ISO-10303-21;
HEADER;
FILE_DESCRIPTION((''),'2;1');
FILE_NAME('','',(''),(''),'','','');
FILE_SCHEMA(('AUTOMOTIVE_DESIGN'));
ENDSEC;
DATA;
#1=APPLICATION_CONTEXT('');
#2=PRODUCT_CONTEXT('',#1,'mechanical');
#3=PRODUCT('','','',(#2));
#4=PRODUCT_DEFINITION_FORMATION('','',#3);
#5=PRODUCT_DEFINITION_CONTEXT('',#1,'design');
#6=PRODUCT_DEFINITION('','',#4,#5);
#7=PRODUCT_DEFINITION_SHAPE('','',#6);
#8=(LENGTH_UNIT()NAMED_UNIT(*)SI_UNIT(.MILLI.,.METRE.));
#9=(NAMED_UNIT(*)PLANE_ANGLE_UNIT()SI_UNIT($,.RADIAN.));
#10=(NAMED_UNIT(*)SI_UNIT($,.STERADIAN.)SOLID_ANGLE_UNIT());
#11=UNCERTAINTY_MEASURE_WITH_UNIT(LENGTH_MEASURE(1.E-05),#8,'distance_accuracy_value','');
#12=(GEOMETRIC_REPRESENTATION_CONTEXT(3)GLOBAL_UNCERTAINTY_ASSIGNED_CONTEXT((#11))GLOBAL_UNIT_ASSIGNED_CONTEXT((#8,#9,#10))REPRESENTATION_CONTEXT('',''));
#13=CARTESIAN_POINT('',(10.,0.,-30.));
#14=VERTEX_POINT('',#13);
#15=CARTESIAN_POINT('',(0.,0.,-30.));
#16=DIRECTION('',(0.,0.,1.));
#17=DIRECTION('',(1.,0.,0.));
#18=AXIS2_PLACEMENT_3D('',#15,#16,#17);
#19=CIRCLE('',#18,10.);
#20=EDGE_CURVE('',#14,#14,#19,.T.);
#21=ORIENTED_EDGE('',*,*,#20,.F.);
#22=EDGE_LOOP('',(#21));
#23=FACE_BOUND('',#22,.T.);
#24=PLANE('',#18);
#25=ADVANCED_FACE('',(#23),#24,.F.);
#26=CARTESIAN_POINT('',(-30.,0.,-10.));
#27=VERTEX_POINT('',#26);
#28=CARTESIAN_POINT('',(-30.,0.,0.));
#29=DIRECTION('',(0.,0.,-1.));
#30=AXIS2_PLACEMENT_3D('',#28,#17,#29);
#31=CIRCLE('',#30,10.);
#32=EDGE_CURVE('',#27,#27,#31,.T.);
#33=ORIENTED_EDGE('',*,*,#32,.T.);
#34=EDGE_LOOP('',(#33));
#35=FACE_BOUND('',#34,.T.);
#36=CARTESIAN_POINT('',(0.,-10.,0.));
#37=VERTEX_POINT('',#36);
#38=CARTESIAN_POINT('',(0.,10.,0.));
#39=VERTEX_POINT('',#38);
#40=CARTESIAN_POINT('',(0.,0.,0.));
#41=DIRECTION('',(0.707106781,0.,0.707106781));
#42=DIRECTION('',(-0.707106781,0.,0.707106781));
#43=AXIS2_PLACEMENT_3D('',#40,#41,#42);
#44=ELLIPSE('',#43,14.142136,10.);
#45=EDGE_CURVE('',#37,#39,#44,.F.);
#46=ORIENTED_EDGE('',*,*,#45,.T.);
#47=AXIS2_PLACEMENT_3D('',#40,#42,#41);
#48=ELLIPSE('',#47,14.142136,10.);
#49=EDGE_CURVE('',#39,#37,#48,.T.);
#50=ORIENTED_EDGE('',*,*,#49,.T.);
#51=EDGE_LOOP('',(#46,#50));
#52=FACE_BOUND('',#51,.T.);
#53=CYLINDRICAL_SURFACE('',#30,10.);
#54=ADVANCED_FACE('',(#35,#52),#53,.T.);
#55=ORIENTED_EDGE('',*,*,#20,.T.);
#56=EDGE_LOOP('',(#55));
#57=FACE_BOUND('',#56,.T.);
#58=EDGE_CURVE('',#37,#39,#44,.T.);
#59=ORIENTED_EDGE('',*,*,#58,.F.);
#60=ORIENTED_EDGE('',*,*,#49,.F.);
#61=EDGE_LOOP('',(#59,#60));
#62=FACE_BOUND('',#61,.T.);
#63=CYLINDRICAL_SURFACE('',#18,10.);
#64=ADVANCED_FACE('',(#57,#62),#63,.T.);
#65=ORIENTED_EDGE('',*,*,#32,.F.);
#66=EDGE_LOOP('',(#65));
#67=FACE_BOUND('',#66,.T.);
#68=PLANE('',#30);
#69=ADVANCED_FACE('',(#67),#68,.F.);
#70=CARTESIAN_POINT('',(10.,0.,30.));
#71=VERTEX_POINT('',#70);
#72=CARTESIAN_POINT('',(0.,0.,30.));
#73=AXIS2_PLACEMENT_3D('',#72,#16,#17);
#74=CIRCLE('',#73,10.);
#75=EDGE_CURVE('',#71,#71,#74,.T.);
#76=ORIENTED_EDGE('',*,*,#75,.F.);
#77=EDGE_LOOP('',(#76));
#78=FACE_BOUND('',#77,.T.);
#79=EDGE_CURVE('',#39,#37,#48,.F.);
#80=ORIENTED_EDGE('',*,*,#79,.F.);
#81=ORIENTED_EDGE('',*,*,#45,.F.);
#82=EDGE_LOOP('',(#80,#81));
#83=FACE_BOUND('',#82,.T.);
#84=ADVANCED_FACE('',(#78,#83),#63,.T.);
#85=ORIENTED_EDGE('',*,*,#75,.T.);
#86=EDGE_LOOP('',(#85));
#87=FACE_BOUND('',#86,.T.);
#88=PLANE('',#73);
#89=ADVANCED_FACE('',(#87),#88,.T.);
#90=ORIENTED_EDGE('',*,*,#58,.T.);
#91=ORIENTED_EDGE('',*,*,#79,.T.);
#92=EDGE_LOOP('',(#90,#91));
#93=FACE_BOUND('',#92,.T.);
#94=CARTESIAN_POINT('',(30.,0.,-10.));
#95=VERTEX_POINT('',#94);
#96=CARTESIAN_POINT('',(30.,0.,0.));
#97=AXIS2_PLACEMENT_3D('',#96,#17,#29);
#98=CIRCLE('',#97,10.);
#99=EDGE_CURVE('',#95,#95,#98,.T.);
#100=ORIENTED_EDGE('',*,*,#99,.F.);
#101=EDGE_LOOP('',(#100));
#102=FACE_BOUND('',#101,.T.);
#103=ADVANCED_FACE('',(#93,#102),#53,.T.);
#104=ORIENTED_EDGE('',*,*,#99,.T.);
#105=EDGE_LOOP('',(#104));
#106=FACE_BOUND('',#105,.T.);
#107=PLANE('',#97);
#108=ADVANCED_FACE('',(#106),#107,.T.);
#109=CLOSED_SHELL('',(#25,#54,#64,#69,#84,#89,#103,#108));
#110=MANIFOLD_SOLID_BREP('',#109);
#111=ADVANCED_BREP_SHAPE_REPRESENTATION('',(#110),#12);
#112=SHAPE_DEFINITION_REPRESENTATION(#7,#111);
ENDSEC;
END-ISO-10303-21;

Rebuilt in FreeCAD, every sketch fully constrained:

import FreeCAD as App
import Part
import Sketcher
from FreeCAD import Vector
Q = App.Units.Quantity

doc = App.newDocument("Part")
params = doc.addObject("Spreadsheet::Sheet", "Params")
for row, (alias, value) in enumerate([
    ("sketch1_diameter", "20 mm"),
    ("pad1_length", "30 mm"),
    ("pad1_length2", "30 mm"),
    ("sketch2_diameter", "20 mm"),
    ("pad2_length", "30 mm"),
    ("pad2_length2", "30 mm"),
], start=1):
    params.set(f"A{row}", alias)
    params.set(f"B{row}", "=" + value)
    params.setAlias(f"B{row}", alias)

body = doc.addObject("PartDesign::Body", "Body")

sketch1 = doc.addObject("Sketcher::SketchObject", "Sketch")
body.addObject(sketch1)
sketch1.AttachmentSupport = (doc.XY_Plane, [""])
sketch1.MapMode = "FlatFace"
sketch1.addGeometry(Part.Circle(Vector(0, 0, 0), Vector(0, 0, 1), 10), False)
sketch1.addConstraint([
    Sketcher.Constraint("Coincident", 0, 3, -1, 1),
    Sketcher.Constraint("Diameter", 0, Q("20 mm")),
])
sketch1.setExpression("Constraints[1]", "Params.sketch1_diameter")
pad1 = doc.addObject("PartDesign::Pad", "Pad")
body.addObject(pad1)
pad1.Profile = sketch1
pad1.Type = "TwoLengths"
pad1.setExpression("Length", "Params.pad1_length")
pad1.setExpression("Length2", "Params.pad1_length2")

sketch2 = doc.addObject("Sketcher::SketchObject", "Sketch001")
body.addObject(sketch2)
sketch2.AttachmentSupport = (doc.YZ_Plane, [""])
sketch2.MapMode = "FlatFace"
sketch2.addGeometry(Part.Circle(Vector(0, 0, 0), Vector(0, 0, 1), 10), False)
sketch2.addConstraint([
    Sketcher.Constraint("Coincident", 0, 3, -1, 1),
    Sketcher.Constraint("Diameter", 0, Q("20 mm")),
])
sketch2.setExpression("Constraints[1]", "Params.sketch2_diameter")
pad2 = doc.addObject("PartDesign::Pad", "Pad001")
body.addObject(pad2)
pad2.Profile = sketch2
pad2.Type = "TwoLengths"
pad2.setExpression("Length", "Params.pad2_length")
pad2.setExpression("Length2", "Params.pad2_length2")

doc.recompute()
